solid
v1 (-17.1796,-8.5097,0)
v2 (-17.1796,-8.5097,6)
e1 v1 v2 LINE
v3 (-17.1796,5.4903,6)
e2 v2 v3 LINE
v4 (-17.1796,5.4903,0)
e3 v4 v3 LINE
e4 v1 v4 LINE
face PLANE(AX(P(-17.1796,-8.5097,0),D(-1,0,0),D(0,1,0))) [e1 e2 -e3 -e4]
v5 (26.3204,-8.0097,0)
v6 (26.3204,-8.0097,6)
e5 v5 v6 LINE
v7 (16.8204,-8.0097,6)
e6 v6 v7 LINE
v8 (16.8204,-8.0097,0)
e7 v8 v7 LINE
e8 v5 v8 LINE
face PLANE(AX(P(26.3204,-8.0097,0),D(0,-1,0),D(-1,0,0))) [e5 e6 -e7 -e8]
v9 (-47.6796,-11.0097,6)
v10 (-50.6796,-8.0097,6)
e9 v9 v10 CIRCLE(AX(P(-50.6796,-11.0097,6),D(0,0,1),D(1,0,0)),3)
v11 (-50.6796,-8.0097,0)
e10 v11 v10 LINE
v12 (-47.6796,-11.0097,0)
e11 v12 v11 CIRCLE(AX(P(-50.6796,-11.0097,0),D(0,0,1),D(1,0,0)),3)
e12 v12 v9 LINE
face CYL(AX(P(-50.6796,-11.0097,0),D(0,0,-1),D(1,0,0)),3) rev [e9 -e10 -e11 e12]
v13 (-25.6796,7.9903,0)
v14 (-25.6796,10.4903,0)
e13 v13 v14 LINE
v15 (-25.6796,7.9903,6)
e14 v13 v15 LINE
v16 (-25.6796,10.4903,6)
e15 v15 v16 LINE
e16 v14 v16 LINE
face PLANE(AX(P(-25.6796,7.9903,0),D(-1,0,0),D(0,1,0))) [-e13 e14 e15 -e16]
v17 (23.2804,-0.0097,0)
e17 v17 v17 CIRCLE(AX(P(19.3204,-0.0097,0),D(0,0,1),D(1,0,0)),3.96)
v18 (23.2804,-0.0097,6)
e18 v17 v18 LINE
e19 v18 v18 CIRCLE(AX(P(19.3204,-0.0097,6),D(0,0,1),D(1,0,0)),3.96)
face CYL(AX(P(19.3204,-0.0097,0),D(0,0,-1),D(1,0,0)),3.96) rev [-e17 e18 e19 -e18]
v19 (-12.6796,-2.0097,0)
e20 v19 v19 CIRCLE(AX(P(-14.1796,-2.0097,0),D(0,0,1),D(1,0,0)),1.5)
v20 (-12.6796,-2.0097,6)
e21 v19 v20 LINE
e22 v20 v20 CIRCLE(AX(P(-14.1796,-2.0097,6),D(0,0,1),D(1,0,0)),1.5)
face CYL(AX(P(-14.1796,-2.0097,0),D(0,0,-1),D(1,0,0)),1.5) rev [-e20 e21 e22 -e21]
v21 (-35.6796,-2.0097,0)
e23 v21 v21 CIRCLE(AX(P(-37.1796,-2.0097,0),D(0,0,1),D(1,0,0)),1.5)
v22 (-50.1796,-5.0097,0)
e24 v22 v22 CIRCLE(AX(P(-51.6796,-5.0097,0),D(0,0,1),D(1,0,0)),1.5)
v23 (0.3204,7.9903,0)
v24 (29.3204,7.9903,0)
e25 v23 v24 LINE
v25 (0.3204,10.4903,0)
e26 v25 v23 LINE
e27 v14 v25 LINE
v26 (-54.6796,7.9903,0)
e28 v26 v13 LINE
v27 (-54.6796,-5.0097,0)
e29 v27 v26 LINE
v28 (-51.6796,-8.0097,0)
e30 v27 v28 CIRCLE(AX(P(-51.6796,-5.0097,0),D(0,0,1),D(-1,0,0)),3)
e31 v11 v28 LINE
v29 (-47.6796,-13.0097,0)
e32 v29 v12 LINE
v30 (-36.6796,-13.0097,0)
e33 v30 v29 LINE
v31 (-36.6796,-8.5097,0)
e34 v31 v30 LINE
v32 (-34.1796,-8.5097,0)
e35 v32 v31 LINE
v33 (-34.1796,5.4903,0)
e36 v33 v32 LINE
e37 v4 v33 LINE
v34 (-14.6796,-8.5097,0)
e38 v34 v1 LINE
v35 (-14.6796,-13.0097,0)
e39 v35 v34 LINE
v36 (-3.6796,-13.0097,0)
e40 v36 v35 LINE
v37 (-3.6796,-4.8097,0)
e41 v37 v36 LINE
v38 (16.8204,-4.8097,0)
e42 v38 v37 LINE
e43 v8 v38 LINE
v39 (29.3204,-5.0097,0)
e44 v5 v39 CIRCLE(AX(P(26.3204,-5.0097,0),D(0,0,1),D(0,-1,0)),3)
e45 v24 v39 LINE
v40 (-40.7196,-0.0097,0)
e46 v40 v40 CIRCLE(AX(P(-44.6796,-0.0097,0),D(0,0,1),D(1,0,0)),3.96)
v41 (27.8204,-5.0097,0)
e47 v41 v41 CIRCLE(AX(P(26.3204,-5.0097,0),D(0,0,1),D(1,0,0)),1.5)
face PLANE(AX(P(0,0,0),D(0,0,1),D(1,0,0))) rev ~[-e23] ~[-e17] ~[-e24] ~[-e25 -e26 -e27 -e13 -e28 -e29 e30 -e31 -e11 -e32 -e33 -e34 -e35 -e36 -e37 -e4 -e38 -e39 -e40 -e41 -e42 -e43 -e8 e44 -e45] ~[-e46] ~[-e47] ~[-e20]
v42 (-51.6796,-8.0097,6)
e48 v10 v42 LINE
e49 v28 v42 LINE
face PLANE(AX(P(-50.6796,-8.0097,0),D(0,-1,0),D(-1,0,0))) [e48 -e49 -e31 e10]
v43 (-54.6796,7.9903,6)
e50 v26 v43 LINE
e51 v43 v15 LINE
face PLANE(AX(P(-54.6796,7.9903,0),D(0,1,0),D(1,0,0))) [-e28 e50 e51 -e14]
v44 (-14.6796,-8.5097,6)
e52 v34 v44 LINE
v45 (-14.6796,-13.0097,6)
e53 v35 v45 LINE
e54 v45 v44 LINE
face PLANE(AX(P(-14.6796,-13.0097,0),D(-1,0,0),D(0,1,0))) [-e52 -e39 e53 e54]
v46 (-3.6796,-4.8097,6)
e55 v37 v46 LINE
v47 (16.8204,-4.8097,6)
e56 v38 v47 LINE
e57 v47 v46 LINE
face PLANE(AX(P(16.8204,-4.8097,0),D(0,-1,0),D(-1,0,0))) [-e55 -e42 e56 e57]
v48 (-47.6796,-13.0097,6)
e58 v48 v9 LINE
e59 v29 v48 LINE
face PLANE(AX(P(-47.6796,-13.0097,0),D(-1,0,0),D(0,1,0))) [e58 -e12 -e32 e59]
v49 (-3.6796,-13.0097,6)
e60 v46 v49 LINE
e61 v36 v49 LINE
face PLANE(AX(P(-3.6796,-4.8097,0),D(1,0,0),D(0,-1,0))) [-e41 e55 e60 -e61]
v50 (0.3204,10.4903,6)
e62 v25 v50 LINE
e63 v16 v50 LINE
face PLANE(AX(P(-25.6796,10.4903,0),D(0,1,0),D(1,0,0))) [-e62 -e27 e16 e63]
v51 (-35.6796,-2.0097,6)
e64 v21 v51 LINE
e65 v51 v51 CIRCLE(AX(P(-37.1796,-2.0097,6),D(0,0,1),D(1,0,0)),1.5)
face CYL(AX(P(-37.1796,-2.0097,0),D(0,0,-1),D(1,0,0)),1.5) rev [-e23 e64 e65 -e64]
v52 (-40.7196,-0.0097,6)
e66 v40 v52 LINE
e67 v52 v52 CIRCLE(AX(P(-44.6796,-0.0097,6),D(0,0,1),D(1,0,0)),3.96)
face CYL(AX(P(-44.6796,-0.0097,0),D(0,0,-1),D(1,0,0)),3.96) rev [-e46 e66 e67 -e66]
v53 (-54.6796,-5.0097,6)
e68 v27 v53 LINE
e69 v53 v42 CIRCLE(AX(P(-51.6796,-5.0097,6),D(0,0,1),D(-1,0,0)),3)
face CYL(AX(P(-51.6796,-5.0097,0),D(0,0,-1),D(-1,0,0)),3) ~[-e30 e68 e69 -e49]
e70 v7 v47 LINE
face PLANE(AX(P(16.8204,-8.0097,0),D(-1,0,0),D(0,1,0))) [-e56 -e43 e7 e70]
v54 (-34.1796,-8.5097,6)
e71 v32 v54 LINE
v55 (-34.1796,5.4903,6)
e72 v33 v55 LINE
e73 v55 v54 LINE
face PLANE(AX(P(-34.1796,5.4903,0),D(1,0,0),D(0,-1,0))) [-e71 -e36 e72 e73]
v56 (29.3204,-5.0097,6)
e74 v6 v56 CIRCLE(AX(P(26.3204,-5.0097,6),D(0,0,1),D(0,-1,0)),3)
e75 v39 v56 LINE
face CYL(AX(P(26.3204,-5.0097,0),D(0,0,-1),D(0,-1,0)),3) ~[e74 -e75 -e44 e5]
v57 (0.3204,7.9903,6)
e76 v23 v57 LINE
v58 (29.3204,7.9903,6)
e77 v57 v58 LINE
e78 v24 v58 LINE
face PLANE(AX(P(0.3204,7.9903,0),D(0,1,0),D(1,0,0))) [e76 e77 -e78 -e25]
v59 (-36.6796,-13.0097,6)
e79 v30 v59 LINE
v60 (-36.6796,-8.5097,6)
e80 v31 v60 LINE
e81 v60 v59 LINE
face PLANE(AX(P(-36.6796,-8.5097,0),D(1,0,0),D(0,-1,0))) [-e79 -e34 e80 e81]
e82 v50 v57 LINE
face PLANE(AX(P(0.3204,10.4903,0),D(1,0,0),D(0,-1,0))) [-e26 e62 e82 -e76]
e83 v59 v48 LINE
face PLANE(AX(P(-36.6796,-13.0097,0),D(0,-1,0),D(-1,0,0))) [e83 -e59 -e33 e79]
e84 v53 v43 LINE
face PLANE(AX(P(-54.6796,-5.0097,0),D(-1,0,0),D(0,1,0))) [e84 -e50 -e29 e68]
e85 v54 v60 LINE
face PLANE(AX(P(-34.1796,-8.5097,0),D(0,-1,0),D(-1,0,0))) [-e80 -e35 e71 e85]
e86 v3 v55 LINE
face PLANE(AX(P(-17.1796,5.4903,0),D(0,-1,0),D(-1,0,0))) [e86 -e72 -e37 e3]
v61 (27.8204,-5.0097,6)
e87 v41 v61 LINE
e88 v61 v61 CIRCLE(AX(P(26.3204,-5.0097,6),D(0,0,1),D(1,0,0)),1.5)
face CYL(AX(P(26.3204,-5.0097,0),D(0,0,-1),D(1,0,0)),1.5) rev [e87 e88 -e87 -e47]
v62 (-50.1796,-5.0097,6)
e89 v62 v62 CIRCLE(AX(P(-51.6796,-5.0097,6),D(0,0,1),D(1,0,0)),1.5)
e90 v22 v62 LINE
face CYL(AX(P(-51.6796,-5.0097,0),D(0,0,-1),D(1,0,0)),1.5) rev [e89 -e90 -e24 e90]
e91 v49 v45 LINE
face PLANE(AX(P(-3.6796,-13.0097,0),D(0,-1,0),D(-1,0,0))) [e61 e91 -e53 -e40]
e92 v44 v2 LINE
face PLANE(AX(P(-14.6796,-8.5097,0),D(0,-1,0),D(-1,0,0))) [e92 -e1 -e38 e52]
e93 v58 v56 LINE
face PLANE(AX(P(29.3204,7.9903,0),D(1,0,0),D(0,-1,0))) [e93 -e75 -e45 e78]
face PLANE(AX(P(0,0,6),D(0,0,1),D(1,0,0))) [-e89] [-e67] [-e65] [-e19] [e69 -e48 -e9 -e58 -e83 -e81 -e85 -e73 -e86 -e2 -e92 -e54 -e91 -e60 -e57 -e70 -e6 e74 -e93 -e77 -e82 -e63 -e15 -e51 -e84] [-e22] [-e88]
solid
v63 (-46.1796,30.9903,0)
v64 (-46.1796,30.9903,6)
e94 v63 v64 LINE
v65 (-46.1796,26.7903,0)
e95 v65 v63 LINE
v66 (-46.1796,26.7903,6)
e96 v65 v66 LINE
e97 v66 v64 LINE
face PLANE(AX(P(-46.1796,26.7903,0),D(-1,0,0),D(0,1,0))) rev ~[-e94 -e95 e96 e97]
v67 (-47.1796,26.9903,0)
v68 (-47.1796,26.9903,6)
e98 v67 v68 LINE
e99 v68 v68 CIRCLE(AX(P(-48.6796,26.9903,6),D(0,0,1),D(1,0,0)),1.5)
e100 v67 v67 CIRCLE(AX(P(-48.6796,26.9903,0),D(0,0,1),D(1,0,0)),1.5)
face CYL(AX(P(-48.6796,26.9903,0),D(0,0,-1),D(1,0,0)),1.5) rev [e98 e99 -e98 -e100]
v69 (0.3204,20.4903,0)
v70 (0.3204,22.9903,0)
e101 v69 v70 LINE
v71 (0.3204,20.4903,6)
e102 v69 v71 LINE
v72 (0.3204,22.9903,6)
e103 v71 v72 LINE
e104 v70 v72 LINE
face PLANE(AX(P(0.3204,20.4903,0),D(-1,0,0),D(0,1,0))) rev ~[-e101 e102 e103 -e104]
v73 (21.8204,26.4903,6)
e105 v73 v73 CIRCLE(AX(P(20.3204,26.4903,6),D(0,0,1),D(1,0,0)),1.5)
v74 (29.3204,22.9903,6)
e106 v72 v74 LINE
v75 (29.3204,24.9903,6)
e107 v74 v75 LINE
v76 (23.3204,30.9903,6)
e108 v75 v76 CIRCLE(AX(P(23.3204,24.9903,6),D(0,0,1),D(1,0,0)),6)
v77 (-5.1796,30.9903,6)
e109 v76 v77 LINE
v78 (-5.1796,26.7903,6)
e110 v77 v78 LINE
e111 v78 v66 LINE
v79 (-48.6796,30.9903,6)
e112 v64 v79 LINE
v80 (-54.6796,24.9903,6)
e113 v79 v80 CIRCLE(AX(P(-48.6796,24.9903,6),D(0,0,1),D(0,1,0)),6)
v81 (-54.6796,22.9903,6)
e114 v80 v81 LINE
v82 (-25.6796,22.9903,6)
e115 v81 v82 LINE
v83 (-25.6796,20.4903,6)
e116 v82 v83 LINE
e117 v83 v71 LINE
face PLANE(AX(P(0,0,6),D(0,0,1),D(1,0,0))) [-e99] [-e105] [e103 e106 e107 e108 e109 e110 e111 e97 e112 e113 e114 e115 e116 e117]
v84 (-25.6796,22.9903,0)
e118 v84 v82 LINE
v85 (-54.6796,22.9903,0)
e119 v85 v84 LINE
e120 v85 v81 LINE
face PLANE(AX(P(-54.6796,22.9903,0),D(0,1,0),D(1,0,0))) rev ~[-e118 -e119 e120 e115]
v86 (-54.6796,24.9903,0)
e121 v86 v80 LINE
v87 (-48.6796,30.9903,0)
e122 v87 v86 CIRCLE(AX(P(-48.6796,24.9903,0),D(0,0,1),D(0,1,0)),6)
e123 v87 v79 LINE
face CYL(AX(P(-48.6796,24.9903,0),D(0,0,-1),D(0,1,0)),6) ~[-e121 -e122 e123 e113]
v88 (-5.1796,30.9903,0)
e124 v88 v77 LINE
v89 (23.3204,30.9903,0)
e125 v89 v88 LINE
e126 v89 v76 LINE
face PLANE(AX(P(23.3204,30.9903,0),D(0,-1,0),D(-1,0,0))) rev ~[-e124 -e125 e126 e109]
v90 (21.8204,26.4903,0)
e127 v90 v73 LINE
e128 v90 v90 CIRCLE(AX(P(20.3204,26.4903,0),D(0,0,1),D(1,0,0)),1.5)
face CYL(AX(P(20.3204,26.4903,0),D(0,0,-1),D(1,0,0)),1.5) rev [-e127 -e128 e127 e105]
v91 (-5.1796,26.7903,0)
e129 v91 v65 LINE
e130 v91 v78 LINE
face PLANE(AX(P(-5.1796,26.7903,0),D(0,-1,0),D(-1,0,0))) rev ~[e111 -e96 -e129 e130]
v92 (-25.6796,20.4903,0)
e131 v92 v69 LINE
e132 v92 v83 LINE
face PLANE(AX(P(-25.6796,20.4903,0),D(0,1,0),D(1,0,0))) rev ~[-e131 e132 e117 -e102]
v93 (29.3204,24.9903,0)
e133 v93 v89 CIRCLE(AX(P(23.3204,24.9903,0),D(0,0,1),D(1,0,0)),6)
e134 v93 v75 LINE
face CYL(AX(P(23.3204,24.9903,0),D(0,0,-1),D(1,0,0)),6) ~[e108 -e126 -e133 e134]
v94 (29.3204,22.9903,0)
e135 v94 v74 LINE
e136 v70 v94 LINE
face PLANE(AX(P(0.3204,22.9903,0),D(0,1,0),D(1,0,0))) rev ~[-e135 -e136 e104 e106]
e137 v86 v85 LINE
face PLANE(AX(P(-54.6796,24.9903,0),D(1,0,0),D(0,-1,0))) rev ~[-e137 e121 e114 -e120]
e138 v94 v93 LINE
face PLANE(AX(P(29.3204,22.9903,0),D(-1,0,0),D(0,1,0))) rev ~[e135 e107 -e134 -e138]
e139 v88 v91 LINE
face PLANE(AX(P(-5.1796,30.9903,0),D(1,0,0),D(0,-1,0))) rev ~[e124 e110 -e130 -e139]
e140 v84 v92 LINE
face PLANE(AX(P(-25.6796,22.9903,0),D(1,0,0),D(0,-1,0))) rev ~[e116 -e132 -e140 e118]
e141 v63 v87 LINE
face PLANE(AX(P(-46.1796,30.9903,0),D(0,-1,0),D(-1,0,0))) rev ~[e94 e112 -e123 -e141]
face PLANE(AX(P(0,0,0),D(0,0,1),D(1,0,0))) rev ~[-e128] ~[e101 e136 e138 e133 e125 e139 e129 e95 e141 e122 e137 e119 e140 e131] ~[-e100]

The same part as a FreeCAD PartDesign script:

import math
import FreeCAD as App
import Part
import Sketcher
Q = App.Units.Quantity

doc = App.newDocument("Part")
body = doc.addObject("PartDesign::Body", "Body")
body.AllowCompound = True

# Sketch on XY plane
sketch1 = body.newObject("Sketcher::SketchObject", "Sketch")
sketch1.AttachmentSupport = (doc.getObject("XY_Plane"), [""])
sketch1.MapMode = "FlatFace"
sketch1.addGeometry([
    Part.LineSegment(App.Vector(16.8204, -8.0097, 0), App.Vector(26.3204, -8.0097, 0)),  # 0
    Part.ArcOfCircle(Part.Circle(App.Vector(26.3204, -5.0097, 0), App.Vector(0, 0, 1), 3), math.radians(-90), math.radians(0)),  # 1
    Part.LineSegment(App.Vector(29.3204, -5.0097, 0), App.Vector(29.3204, 7.9903, 0)),  # 2
    Part.LineSegment(App.Vector(29.3204, 7.9903, 0), App.Vector(0.3204, 7.9903, 0)),  # 3
    Part.LineSegment(App.Vector(0.3204, 7.9903, 0), App.Vector(0.3204, 10.4903, 0)),  # 4
    Part.LineSegment(App.Vector(0.3204, 10.4903, 0), App.Vector(-25.6796, 10.4903, 0)),  # 5
    Part.LineSegment(App.Vector(-25.6796, 10.4903, 0), App.Vector(-25.6796, 7.9903, 0)),  # 6
    Part.LineSegment(App.Vector(-25.6796, 7.9903, 0), App.Vector(-54.6796, 7.9903, 0)),  # 7
    Part.LineSegment(App.Vector(-54.6796, 7.9903, 0), App.Vector(-54.6796, -5.0097, 0)),  # 8
    Part.ArcOfCircle(Part.Circle(App.Vector(-51.6796, -5.0097, 0), App.Vector(0, 0, 1), 3), math.radians(180), math.radians(270)),  # 9
    Part.LineSegment(App.Vector(-51.6796, -8.0097, 0), App.Vector(-50.6796, -8.0097, 0)),  # 10
    Part.ArcOfCircle(Part.Circle(App.Vector(-50.6796, -11.0097, 0), App.Vector(0, 0, 1), 3), math.radians(0), math.radians(90)),  # 11
    Part.LineSegment(App.Vector(-47.6796, -11.0097, 0), App.Vector(-47.6796, -13.0097, 0)),  # 12
    Part.LineSegment(App.Vector(-47.6796, -13.0097, 0), App.Vector(-36.6796, -13.0097, 0)),  # 13
    Part.LineSegment(App.Vector(-36.6796, -13.0097, 0), App.Vector(-36.6796, -8.5097, 0)),  # 14
    Part.LineSegment(App.Vector(-36.6796, -8.5097, 0), App.Vector(-34.1796, -8.5097, 0)),  # 15
    Part.LineSegment(App.Vector(-34.1796, -8.5097, 0), App.Vector(-34.1796, 5.4903, 0)),  # 16
    Part.LineSegment(App.Vector(-34.1796, 5.4903, 0), App.Vector(-17.1796, 5.4903, 0)),  # 17
    Part.LineSegment(App.Vector(-17.1796, 5.4903, 0), App.Vector(-17.1796, -8.5097, 0)),  # 18
    Part.LineSegment(App.Vector(-17.1796, -8.5097, 0), App.Vector(-14.6796, -8.5097, 0)),  # 19
    Part.LineSegment(App.Vector(-14.6796, -8.5097, 0), App.Vector(-14.6796, -13.0097, 0)),  # 20
    Part.LineSegment(App.Vector(-14.6796, -13.0097, 0), App.Vector(-3.6796, -13.0097, 0)),  # 21
    Part.LineSegment(App.Vector(-3.6796, -13.0097, 0), App.Vector(-3.6796, -4.8097, 0)),  # 22
    Part.LineSegment(App.Vector(-3.6796, -4.8097, 0), App.Vector(16.8204, -4.8097, 0)),  # 23
    Part.LineSegment(App.Vector(16.8204, -4.8097, 0), App.Vector(16.8204, -8.0097, 0)),  # 24
    Part.Circle(App.Vector(-51.6796, -5.0097, 0), App.Vector(0, 0, 1), 1.5),  # 25
    Part.Circle(App.Vector(-44.6796, -0.0097, 0), App.Vector(0, 0, 1), 3.96),  # 26
    Part.Circle(App.Vector(-37.1796, -2.0097, 0), App.Vector(0, 0, 1), 1.5),  # 27
    Part.Circle(App.Vector(-14.1796, -2.0097, 0), App.Vector(0, 0, 1), 1.5),  # 28
    Part.Circle(App.Vector(26.3204, -5.0097, 0), App.Vector(0, 0, 1), 1.5),  # 29
    Part.Circle(App.Vector(19.3204, -0.0097, 0), App.Vector(0, 0, 1), 3.96),  # 30
    Part.LineSegment(App.Vector(-46.1796, 30.9903, 0), App.Vector(-48.6796, 30.9903, 0)),  # 31
    Part.ArcOfCircle(Part.Circle(App.Vector(-48.6796, 24.9903, 0), App.Vector(0, 0, 1), 6), math.radians(90), math.radians(180)),  # 32
    Part.LineSegment(App.Vector(-54.6796, 24.9903, 0), App.Vector(-54.6796, 22.9903, 0)),  # 33
    Part.LineSegment(App.Vector(-54.6796, 22.9903, 0), App.Vector(-25.6796, 22.9903, 0)),  # 34
    Part.LineSegment(App.Vector(-25.6796, 22.9903, 0), App.Vector(-25.6796, 20.4903, 0)),  # 35
    Part.LineSegment(App.Vector(-25.6796, 20.4903, 0), App.Vector(0.3204, 20.4903, 0)),  # 36
    Part.LineSegment(App.Vector(0.3204, 20.4903, 0), App.Vector(0.3204, 22.9903, 0)),  # 37
    Part.LineSegment(App.Vector(0.3204, 22.9903, 0), App.Vector(29.3204, 22.9903, 0)),  # 38
    Part.LineSegment(App.Vector(29.3204, 22.9903, 0), App.Vector(29.3204, 24.9903, 0)),  # 39
    Part.ArcOfCircle(Part.Circle(App.Vector(23.3204, 24.9903, 0), App.Vector(0, 0, 1), 6), math.radians(0), math.radians(90)),  # 40
    Part.LineSegment(App.Vector(23.3204, 30.9903, 0), App.Vector(-5.1796, 30.9903, 0)),  # 41
    Part.LineSegment(App.Vector(-5.1796, 30.9903, 0), App.Vector(-5.1796, 26.7903, 0)),  # 42
    Part.LineSegment(App.Vector(-5.1796, 26.7903, 0), App.Vector(-46.1796, 26.7903, 0)),  # 43
    Part.LineSegment(App.Vector(-46.1796, 26.7903, 0), App.Vector(-46.1796, 30.9903, 0)),  # 44
    Part.Circle(App.Vector(-48.6796, 26.9903, 0), App.Vector(0, 0, 1), 1.5),  # 45
    Part.Circle(App.Vector(20.3204, 26.4903, 0), App.Vector(0, 0, 1), 1.5),  # 46
], False)
sketch1.addConstraint([
    Sketcher.Constraint("Tangent", 0, 2, 1, 1),
    Sketcher.Constraint("Tangent", 1, 2, 2, 1),
    Sketcher.Constraint("Coincident", 2, 2, 3, 1),
    Sketcher.Constraint("Coincident", 3, 2, 4, 1),
    Sketcher.Constraint("Coincident", 4, 2, 5, 1),
    Sketcher.Constraint("Coincident", 5, 2, 6, 1),
    Sketcher.Constraint("Coincident", 6, 2, 7, 1),
    Sketcher.Constraint("Coincident", 7, 2, 8, 1),
    Sketcher.Constraint("Tangent", 8, 2, 9, 1),
    Sketcher.Constraint("Tangent", 9, 2, 10, 1),
    Sketcher.Constraint("Tangent", 10, 2, 11, 2),
    Sketcher.Constraint("Tangent", 11, 1, 12, 1),
    Sketcher.Constraint("Coincident", 12, 2, 13, 1),
    Sketcher.Constraint("Coincident", 13, 2, 14, 1),
    Sketcher.Constraint("Coincident", 14, 2, 15, 1),
    Sketcher.Constraint("Coincident", 15, 2, 16, 1),
    Sketcher.Constraint("Coincident", 16, 2, 17, 1),
    Sketcher.Constraint("Coincident", 17, 2, 18, 1),
    Sketcher.Constraint("Coincident", 18, 2, 19, 1),
    Sketcher.Constraint("Coincident", 19, 2, 20, 1),
    Sketcher.Constraint("Coincident", 20, 2, 21, 1),
    Sketcher.Constraint("Coincident", 21, 2, 22, 1),
    Sketcher.Constraint("Coincident", 22, 2, 23, 1),
    Sketcher.Constraint("Coincident", 23, 2, 24, 1),
    Sketcher.Constraint("Coincident", 24, 2, 0, 1),
    Sketcher.Constraint("Tangent", 31, 2, 32, 1),
    Sketcher.Constraint("Tangent", 32, 2, 33, 1),
    Sketcher.Constraint("Coincident", 33, 2, 34, 1),
    Sketcher.Constraint("Coincident", 34, 2, 35, 1),
    Sketcher.Constraint("Coincident", 35, 2, 36, 1),
    Sketcher.Constraint("Coincident", 36, 2, 37, 1),
    Sketcher.Constraint("Coincident", 37, 2, 38, 1),
    Sketcher.Constraint("Coincident", 38, 2, 39, 1),
    Sketcher.Constraint("Tangent", 39, 2, 40, 1),
    Sketcher.Constraint("Tangent", 40, 2, 41, 1),
    Sketcher.Constraint("Coincident", 41, 2, 42, 1),
    Sketcher.Constraint("Coincident", 42, 2, 43, 1),
    Sketcher.Constraint("Coincident", 43, 2, 44, 1),
    Sketcher.Constraint("Coincident", 44, 2, 31, 1),
    Sketcher.Constraint("Horizontal", 0),
    Sketcher.Constraint("Vertical", 2),
    Sketcher.Constraint("Horizontal", 3),
    Sketcher.Constraint("Vertical", 4),
    Sketcher.Constraint("Horizontal", 5),
    Sketcher.Constraint("Vertical", 6),
    Sketcher.Constraint("Horizontal", 7),
    Sketcher.Constraint("Vertical", 8),
    Sketcher.Constraint("Horizontal", 10),
    Sketcher.Constraint("Vertical", 12),
    Sketcher.Constraint("Horizontal", 13),
    Sketcher.Constraint("Vertical", 14),
    Sketcher.Constraint("Horizontal", 15),
    Sketcher.Constraint("Vertical", 16),
    Sketcher.Constraint("Horizontal", 17),
    Sketcher.Constraint("Vertical", 18),
    Sketcher.Constraint("Horizontal", 19),
    Sketcher.Constraint("Vertical", 20),
    Sketcher.Constraint("Horizontal", 21),
    Sketcher.Constraint("Vertical", 22),
    Sketcher.Constraint("Horizontal", 23),
    Sketcher.Constraint("Vertical", 24),
    Sketcher.Constraint("Horizontal", 31),
    Sketcher.Constraint("Vertical", 33),
    Sketcher.Constraint("Horizontal", 34),
    Sketcher.Constraint("Vertical", 35),
    Sketcher.Constraint("Horizontal", 36),
    Sketcher.Constraint("Vertical", 37),
    Sketcher.Constraint("Horizontal", 38),
    Sketcher.Constraint("Vertical", 39),
    Sketcher.Constraint("Horizontal", 41),
    Sketcher.Constraint("Vertical", 42),
    Sketcher.Constraint("Horizontal", 43),
    Sketcher.Constraint("Vertical", 44),
    Sketcher.Constraint("Coincident", 25, 3, 9, 3),
    Sketcher.Constraint("Coincident", 29, 3, 1, 3),
    Sketcher.Constraint("Equal", 1, 9),
    Sketcher.Constraint("Equal", 9, 11),
    Sketcher.Constraint("Equal", 25, 27),
    Sketcher.Constraint("Equal", 27, 28),
    Sketcher.Constraint("Equal", 28, 29),
    Sketcher.Constraint("Equal", 26, 30),
    Sketcher.Constraint("Equal", 32, 40),
    Sketcher.Constraint("Equal", 29, 45),
    Sketcher.Constraint("Equal", 45, 46),
    Sketcher.Constraint("Horizontal", 1, 3, 9, 3),
    Sketcher.Constraint("Horizontal", 27, 3, 28, 3),
    Sketcher.Constraint("Horizontal", 26, 3, 30, 3),
    Sketcher.Constraint("Horizontal", 32, 3, 40, 3),
    Sketcher.Constraint("Horizontal", 3, 2, 6, 2),
    Sketcher.Constraint("Horizontal", 15, 2, 18, 2),
    Sketcher.Constraint("Horizontal", 13, 2, 20, 2),
    Sketcher.Constraint("Horizontal", 34, 2, 37, 2),
    Sketcher.Constraint("Vertical", 32, 3, 45, 3),
    Sketcher.Constraint("Vertical", 8, 2, 32, 2),
    Sketcher.Constraint("Vertical", 6, 2, 34, 2),
    Sketcher.Constraint("Vertical", 4, 2, 36, 2),
    Sketcher.Constraint("Vertical", 2, 2, 38, 2),
    Sketcher.Constraint("Equal", 3, 7),
    Sketcher.Constraint("Equal", 15, 19),
    Sketcher.Constraint("Equal", 13, 21),
    Sketcher.Constraint("Equal", 19, 31),
    Sketcher.Constraint("Equal", 31, 4),
    Sketcher.Constraint("Equal", 12, 33),
    Sketcher.Constraint("Equal", 6, 35),
    Sketcher.Constraint("Diameter", 25, Q("3 mm")),
    Sketcher.Constraint("Radius", 1, Q("3 mm")),
    Sketcher.Constraint("Radius", 32, Q("6 mm")),
    Sketcher.Constraint("Diameter", 26, Q("7.92 mm")),
    Sketcher.Constraint("DistanceX", 3, 2, 3, 1, Q("29 mm")),
    Sketcher.Constraint("DistanceX", 5, 2, 5, 1, Q("26 mm")),
    Sketcher.Constraint("DistanceX", 10, 1, 10, 2, Q("1 mm")),
    Sketcher.Constraint("DistanceX", 13, 1, 13, 2, Q("11 mm")),
    Sketcher.Constraint("DistanceX", 17, 1, 17, 2, Q("17 mm")),
    Sketcher.Constraint("DistanceX", 43, 2, 43, 1, Q("41 mm")),
    Sketcher.Constraint("DistanceY", 2, 1, 2, 2, Q("13 mm")),
    Sketcher.Constraint("DistanceY", 12, 2, 12, 1, Q("2 mm")),
    Sketcher.Constraint("DistanceY", 16, 1, 16, 2, Q("14 mm")),
    Sketcher.Constraint("DistanceX", 0, 1, 0, 2, Q("9.5 mm")),
    Sketcher.Constraint("DistanceX", 15, 1, 15, 2, Q("2.5 mm")),
    Sketcher.Constraint("DistanceY", 14, 1, 14, 2, Q("4.5 mm")),
    Sketcher.Constraint("DistanceY", 22, 1, 22, 2, Q("8.2 mm")),
    Sketcher.Constraint("DistanceY", 42, 2, 42, 1, Q("4.2 mm")),
    Sketcher.Constraint("DistanceX", 9, 3, 26, 3, Q("7 mm")),
    Sketcher.Constraint("DistanceY", 9, 3, 26, 3, Q("5 mm")),
    Sketcher.Constraint("DistanceY", 27, 3, 26, 3, Q("2 mm")),
    Sketcher.Constraint("DistanceX", 27, 3, 28, 3, Q("23 mm")),
    Sketcher.Constraint("DistanceX", 30, 3, 1, 3, Q("7 mm")),
    Sketcher.Constraint("DistanceY", 26, 3, 32, 3, Q("25 mm")),
    Sketcher.Constraint("DistanceY", 32, 3, 45, 3, Q("2 mm")),
    Sketcher.Constraint("DistanceX", 46, 3, 40, 3, Q("3 mm")),
    Sketcher.Constraint("DistanceY", 4, 2, 46, 3, Q("16 mm")),
    Sketcher.Constraint("DistanceX", 27, 3, 15, 2, Q("3 mm")),
    Sketcher.Constraint("DistanceX", -1, 1, 1, 3, Q("26.3204 mm")),
    Sketcher.Constraint("DistanceY", 1, 3, -1, 1, Q("5.0097 mm")),
])
pad1 = body.newObject("PartDesign::Pad", "Pad")
pad1.Profile = sketch1
pad1.Length = 6

doc.recompute()
